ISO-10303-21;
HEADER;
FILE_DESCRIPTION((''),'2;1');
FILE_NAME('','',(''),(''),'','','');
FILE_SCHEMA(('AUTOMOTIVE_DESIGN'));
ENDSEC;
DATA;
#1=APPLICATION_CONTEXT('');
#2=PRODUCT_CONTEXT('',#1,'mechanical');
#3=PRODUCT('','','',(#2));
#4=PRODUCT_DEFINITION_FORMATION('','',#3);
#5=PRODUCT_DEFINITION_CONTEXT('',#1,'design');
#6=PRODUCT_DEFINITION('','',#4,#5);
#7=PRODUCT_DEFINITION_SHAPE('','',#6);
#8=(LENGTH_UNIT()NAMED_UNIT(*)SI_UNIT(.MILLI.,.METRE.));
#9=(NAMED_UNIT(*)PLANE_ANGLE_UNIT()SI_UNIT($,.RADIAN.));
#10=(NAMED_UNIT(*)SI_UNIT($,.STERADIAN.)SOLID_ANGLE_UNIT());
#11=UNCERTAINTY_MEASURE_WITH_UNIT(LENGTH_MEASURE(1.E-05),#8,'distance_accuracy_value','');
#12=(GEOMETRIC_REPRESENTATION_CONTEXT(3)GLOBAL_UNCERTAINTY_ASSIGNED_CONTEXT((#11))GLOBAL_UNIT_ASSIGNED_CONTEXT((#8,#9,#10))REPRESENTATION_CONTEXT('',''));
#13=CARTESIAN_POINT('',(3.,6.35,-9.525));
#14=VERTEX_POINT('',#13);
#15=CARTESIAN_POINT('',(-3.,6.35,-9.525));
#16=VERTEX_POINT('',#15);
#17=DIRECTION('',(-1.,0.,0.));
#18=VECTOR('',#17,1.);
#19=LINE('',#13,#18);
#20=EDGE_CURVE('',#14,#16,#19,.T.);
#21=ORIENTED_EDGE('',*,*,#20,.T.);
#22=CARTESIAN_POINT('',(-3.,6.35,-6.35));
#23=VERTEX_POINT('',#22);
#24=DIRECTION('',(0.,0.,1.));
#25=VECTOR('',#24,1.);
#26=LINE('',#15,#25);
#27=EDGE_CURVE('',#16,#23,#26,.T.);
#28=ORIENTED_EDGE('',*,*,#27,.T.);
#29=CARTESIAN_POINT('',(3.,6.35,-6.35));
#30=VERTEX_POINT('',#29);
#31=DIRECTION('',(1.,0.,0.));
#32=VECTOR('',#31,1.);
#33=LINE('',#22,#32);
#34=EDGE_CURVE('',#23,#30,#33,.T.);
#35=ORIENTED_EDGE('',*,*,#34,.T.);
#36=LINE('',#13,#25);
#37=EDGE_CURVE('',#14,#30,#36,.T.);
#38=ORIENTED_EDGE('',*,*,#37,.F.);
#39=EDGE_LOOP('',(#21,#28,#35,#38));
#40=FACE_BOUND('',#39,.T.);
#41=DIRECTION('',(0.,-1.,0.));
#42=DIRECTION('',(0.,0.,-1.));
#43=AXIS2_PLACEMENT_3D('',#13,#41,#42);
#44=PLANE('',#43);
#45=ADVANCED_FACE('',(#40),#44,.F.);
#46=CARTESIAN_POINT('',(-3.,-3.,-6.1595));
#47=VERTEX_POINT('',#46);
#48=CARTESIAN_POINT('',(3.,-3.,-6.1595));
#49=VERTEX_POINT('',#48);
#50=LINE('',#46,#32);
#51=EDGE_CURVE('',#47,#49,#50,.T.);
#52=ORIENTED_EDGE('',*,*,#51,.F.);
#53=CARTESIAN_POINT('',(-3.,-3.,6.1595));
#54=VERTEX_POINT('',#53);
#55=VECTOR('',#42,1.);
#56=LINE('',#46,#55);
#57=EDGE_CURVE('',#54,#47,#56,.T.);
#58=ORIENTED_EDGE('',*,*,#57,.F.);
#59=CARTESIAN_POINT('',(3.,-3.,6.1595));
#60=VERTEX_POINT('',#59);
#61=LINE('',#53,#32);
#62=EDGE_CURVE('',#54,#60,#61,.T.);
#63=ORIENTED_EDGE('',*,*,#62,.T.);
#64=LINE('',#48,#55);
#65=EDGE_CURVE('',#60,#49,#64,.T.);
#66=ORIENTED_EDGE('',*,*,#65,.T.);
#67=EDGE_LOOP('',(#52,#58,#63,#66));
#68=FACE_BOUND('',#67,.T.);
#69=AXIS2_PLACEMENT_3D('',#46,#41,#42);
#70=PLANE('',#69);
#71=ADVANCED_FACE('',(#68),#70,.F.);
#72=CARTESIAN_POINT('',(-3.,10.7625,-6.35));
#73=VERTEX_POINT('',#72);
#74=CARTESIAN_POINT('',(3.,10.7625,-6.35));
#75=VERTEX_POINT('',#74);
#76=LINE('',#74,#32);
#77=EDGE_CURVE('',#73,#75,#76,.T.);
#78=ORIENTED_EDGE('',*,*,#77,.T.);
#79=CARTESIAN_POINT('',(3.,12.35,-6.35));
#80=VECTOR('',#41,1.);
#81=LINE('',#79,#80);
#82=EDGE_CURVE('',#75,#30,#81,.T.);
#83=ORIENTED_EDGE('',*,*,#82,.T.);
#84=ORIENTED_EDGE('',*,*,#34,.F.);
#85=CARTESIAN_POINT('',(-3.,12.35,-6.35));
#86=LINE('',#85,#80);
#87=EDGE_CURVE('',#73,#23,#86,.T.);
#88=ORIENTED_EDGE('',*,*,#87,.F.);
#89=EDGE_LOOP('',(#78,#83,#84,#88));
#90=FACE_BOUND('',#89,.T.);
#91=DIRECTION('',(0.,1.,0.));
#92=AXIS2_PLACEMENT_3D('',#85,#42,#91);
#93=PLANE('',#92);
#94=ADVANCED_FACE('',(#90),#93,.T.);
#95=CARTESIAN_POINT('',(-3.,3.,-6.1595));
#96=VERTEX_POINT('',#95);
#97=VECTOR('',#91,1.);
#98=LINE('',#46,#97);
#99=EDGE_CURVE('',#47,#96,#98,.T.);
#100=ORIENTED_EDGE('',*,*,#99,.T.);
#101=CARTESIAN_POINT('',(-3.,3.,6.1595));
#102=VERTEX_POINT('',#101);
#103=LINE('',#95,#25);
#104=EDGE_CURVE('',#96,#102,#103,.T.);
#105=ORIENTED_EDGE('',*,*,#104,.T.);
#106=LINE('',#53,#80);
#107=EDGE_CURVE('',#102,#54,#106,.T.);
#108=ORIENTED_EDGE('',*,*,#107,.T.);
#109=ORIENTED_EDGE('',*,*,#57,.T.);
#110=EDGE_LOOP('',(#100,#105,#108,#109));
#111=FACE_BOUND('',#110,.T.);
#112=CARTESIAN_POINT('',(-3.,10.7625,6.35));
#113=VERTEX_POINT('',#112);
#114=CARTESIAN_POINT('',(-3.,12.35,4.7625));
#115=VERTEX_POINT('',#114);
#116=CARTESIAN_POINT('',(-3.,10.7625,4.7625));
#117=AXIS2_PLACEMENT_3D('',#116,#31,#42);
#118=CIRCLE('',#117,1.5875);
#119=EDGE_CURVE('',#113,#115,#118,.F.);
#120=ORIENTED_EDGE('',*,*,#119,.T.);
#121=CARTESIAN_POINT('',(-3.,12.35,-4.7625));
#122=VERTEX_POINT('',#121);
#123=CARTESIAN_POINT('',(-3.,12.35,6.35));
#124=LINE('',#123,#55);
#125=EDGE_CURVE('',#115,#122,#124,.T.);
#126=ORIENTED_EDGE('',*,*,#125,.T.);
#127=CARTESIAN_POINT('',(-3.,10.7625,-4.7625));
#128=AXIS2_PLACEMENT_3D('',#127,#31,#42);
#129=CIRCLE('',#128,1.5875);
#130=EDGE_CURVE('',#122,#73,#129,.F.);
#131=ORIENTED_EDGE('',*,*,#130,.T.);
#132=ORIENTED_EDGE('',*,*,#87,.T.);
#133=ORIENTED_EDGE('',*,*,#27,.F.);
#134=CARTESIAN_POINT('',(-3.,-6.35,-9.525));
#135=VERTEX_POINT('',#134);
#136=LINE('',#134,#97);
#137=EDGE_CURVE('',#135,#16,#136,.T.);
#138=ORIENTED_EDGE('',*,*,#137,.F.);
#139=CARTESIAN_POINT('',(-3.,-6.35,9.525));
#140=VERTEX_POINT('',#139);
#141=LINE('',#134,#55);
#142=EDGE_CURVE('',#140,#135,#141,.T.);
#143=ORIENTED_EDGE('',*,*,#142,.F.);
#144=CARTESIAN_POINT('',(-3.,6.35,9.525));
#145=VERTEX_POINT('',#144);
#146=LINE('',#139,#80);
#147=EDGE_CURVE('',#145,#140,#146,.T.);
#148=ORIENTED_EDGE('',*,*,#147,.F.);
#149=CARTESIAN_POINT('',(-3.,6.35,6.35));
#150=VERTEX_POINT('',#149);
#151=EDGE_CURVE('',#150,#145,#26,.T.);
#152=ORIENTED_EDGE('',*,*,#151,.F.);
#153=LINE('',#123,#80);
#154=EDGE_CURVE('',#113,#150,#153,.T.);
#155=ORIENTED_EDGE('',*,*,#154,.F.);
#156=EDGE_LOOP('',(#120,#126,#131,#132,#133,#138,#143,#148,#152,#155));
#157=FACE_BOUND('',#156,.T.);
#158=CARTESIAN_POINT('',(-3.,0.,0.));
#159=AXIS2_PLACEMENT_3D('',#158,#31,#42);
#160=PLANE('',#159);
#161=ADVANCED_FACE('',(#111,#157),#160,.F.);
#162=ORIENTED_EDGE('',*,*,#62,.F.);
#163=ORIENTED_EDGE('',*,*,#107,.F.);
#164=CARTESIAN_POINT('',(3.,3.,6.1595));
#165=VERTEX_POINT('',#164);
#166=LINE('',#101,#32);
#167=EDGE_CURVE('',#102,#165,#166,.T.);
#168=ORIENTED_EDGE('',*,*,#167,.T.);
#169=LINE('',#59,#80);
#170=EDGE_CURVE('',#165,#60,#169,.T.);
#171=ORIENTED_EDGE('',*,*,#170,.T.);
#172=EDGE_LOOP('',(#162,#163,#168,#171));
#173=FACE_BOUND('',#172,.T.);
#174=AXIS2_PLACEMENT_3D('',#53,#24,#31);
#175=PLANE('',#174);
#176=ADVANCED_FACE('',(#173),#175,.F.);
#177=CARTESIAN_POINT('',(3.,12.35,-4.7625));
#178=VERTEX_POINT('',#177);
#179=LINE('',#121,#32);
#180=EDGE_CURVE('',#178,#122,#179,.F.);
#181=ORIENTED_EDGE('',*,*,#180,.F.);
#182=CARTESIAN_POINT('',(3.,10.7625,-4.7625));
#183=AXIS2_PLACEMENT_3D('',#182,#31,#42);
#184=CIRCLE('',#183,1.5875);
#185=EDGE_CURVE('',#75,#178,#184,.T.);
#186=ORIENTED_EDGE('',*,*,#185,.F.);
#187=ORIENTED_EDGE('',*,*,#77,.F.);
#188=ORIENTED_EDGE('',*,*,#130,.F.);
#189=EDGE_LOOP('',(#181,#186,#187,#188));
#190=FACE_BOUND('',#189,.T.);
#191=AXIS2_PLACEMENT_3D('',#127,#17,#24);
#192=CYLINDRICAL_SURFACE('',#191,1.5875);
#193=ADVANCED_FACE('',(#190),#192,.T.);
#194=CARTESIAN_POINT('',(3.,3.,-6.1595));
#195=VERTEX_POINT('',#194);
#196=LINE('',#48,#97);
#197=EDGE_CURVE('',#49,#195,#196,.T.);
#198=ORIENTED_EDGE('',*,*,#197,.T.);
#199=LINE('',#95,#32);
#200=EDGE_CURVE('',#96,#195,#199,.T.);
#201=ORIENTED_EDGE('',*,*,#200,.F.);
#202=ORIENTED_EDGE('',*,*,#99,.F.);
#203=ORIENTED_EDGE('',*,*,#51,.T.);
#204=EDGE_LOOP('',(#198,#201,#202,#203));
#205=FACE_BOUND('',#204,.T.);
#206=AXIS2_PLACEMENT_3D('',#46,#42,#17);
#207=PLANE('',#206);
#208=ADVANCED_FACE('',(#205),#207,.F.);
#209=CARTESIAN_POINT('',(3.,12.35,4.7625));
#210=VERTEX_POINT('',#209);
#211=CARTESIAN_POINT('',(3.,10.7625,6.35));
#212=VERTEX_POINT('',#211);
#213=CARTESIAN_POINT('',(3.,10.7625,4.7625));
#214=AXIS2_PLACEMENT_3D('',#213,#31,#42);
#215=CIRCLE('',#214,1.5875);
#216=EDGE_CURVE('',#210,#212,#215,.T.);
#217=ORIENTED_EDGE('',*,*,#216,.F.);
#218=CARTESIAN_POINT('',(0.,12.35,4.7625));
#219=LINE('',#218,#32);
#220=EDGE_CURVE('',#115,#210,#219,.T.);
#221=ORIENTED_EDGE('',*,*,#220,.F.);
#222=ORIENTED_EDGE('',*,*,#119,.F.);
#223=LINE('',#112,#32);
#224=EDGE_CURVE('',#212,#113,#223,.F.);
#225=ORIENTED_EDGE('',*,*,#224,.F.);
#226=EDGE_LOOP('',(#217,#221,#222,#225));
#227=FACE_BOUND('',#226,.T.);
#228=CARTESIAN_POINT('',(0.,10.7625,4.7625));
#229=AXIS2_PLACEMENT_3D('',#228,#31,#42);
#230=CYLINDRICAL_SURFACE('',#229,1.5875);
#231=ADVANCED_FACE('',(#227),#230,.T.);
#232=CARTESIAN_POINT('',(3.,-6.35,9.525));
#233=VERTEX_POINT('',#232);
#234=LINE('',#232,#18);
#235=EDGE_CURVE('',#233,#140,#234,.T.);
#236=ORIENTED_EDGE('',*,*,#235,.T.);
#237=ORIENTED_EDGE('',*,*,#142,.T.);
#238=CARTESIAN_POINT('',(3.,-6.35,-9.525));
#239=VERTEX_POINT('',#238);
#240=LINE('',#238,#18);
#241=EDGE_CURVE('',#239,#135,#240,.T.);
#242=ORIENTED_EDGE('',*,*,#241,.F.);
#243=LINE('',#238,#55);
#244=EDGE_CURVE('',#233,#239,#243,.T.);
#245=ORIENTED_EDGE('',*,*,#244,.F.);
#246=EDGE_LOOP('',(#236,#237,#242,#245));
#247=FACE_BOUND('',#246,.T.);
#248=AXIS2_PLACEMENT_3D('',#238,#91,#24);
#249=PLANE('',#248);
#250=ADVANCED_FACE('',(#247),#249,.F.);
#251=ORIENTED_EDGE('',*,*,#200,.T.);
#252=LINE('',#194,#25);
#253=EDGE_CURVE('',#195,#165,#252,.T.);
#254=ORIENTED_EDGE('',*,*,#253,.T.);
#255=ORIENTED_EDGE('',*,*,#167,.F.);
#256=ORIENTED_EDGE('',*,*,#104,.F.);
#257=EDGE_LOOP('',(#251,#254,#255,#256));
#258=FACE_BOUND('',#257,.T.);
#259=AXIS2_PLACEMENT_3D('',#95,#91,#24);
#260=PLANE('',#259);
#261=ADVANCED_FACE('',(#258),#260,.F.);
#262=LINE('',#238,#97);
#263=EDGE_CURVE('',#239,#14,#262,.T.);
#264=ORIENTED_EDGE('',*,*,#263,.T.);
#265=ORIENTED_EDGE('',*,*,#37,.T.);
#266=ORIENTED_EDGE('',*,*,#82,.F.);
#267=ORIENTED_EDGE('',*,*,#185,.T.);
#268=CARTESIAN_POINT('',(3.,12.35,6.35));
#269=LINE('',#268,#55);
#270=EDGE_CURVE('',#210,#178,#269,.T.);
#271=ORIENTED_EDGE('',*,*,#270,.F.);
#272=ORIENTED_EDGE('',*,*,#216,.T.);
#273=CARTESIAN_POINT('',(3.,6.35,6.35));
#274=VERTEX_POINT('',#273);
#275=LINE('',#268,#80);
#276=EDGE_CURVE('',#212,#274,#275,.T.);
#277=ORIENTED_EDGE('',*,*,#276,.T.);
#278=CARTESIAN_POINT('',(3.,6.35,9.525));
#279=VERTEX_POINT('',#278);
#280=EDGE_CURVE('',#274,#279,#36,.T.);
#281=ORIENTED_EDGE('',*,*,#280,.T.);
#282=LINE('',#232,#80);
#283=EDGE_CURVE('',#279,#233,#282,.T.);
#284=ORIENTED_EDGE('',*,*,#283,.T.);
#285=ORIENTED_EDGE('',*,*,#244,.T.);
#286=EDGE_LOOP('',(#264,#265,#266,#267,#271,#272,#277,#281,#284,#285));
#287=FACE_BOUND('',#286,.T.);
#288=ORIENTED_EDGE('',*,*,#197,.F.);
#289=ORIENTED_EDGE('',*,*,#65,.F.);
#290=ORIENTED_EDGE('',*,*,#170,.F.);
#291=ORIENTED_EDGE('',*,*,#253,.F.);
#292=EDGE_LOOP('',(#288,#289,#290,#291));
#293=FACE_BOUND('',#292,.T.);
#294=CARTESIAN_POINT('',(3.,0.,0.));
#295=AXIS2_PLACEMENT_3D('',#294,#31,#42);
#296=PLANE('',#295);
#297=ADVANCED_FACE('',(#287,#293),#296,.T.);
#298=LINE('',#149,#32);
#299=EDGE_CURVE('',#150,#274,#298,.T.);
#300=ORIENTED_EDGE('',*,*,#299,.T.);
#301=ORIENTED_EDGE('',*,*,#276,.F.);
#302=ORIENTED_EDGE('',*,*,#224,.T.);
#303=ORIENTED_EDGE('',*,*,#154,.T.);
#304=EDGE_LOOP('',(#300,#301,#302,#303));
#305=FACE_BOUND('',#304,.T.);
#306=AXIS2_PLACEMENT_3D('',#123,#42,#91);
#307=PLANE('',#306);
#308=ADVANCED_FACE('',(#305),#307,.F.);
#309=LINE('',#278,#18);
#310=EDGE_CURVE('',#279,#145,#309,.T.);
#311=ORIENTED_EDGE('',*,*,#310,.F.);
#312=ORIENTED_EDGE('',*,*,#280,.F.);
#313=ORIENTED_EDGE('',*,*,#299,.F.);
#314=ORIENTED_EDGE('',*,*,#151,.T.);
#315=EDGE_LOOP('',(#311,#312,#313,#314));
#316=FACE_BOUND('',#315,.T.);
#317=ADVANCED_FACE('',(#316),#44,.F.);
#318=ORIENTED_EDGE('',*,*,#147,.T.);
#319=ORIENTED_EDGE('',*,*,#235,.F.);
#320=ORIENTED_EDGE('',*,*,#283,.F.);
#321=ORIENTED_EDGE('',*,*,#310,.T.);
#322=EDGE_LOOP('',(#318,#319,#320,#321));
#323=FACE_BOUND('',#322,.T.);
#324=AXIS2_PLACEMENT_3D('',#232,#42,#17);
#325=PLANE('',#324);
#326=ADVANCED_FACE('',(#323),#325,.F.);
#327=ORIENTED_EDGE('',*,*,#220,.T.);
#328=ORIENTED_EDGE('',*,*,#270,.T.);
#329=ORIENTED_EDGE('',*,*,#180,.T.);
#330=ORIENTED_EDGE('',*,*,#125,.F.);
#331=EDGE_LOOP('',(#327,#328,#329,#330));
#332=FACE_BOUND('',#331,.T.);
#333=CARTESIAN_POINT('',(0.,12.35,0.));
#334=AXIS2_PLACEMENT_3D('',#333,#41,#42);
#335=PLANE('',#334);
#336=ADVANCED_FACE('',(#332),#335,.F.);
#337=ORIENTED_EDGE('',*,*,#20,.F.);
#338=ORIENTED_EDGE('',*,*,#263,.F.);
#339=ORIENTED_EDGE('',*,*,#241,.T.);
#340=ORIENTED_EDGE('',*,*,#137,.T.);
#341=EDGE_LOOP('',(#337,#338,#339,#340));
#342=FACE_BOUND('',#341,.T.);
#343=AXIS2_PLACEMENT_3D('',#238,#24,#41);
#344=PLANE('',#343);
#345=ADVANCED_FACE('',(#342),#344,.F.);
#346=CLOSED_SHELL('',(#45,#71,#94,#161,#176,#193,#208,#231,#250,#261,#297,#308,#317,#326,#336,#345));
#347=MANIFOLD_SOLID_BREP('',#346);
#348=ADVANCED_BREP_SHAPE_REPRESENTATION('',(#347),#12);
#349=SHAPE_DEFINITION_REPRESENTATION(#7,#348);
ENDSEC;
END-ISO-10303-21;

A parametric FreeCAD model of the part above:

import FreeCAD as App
import Part
import Sketcher

V = App.Vector
Q = App.Units.Quantity


def edges_at(feature, points):
    """Names of the edges that pass closest to the given points."""
    edges = feature.Shape.Edges
    near = lambda p: min(range(len(edges)), key=lambda i: edges[i].distToShape(Part.Vertex(*p))[0])
    return sorted({f"Edge{near(p) + 1}" for p in points})

doc = App.newDocument("Part")
body = doc.addObject("PartDesign::Body", "Body")

# Sketch on YZ plane
sketch1 = body.newObject("Sketcher::SketchObject", "Sketch")
sketch1.AttachmentSupport = (doc.getObject("YZ_Plane"), [""])
sketch1.MapMode = "FlatFace"
sketch1.addGeometry(Part.LineSegment(V(6, 10, 0), V(-6, 10, 0)), False)
sketch1.addGeometry(Part.LineSegment(V(-6, 10, 0), V(-6, -10, 0)), False)
sketch1.addGeometry(Part.LineSegment(V(-6, -10, 0), V(6, -10, 0)), False)
sketch1.addGeometry(Part.LineSegment(V(6, -10, 0), V(6, 10, 0)), False)
sketch1.addConstraint(Sketcher.Constraint("Coincident", 0, 2, 1, 1))
sketch1.addConstraint(Sketcher.Constraint("Coincident", 1, 2, 2, 1))
sketch1.addConstraint(Sketcher.Constraint("Coincident", 2, 2, 3, 1))
sketch1.addConstraint(Sketcher.Constraint("Coincident", 3, 2, 0, 1))
sketch1.addConstraint(Sketcher.Constraint("Horizontal", 0))
sketch1.addConstraint(Sketcher.Constraint("Vertical", 1))
sketch1.addConstraint(Sketcher.Constraint("Horizontal", 2))
sketch1.addConstraint(Sketcher.Constraint("Vertical", 3))
sketch1.addConstraint(Sketcher.Constraint("Symmetric", 0, 2, 2, 2, -1, 1))
sketch1.addConstraint(Sketcher.Constraint("DistanceX", 0, 2, 0, 1, Q("0.5 in")))
sketch1.addConstraint(Sketcher.Constraint("DistanceY", 1, 2, 1, 1, Q("0.75 in")))
pad1 = body.newObject("PartDesign::Pad", "Pad")
pad1.Profile = sketch1
pad1.Length = 6
pad1.Midplane = True

# Sketch on XZ plane
sketch2 = body.newObject("Sketcher::SketchObject", "Sketch001")
sketch2.AttachmentSupport = (doc.getObject("XZ_Plane"), [""])
sketch2.MapMode = "FlatFace"
sketch2.AttachmentOffset = App.Placement(V(0, 0, -0.25 * 25.4), App.Rotation())
sketch2.addGeometry(Part.LineSegment(V(-3, -6, 0), V(-3, 6, 0)), False)
sketch2.addGeometry(Part.LineSegment(V(-3, 6, 0), V(3, 6, 0)), False)
sketch2.addGeometry(Part.LineSegment(V(3, 6, 0), V(3, -6, 0)), False)
sketch2.addGeometry(Part.LineSegment(V(3, -6, 0), V(-3, -6, 0)), False)
sketch2.addConstraint(Sketcher.Constraint("Coincident", 0, 2, 1, 1))
sketch2.addConstraint(Sketcher.Constraint("Coincident", 1, 2, 2, 1))
sketch2.addConstraint(Sketcher.Constraint("Coincident", 2, 2, 3, 1))
sketch2.addConstraint(Sketcher.Constraint("Coincident", 3, 2, 0, 1))
sketch2.addConstraint(Sketcher.Constraint("Vertical", 0))
sketch2.addConstraint(Sketcher.Constraint("Horizontal", 1))
sketch2.addConstraint(Sketcher.Constraint("Vertical", 2))
sketch2.addConstraint(Sketcher.Constraint("Horizontal", 3))
sketch2.addConstraint(Sketcher.Constraint("Symmetric", 0, 2, 2, 2, -1, 1))
sketch2.addConstraint(Sketcher.Constraint("DistanceY", 0, 1, 0, 2, Q("0.5 in")))
sketch2.addConstraint(Sketcher.Constraint("DistanceX", 1, 1, 1, 2, Q("6 mm")))
pad2 = body.newObject("PartDesign::Pad", "Pad001")
pad2.Profile = sketch2
pad2.Length = 6
pad2.Reversed = True

# Sketch on YZ plane
sketch3 = body.newObject("Sketcher::SketchObject", "Sketch002")
sketch3.AttachmentSupport = (doc.getObject("YZ_Plane"), [""])
sketch3.MapMode = "FlatFace"
sketch3.AttachmentOffset = App.Placement(V(0, 0, 3), App.Rotation())
sketch3.addGeometry(Part.LineSegment(V(3, 6, 0), V(-3, 6, 0)), False)
sketch3.addGeometry(Part.LineSegment(V(-3, 6, 0), V(-3, -6, 0)), False)
sketch3.addGeometry(Part.LineSegment(V(-3, -6, 0), V(3, -6, 0)), False)
sketch3.addGeometry(Part.LineSegment(V(3, -6, 0), V(3, 6, 0)), False)
sketch3.addConstraint(Sketcher.Constraint("Coincident", 0, 2, 1, 1))
sketch3.addConstraint(Sketcher.Constraint("Coincident", 1, 2, 2, 1))
sketch3.addConstraint(Sketcher.Constraint("Coincident", 2, 2, 3, 1))
sketch3.addConstraint(Sketcher.Constraint("Coincident", 3, 2, 0, 1))
sketch3.addConstraint(Sketcher.Constraint("Horizontal", 0))
sketch3.addConstraint(Sketcher.Constraint("Vertical", 1))
sketch3.addConstraint(Sketcher.Constraint("Horizontal", 2))
sketch3.addConstraint(Sketcher.Constraint("Vertical", 3))
sketch3.addConstraint(Sketcher.Constraint("Symmetric", 0, 2, 2, 2, -1, 1))
sketch3.addConstraint(Sketcher.Constraint("DistanceY", 1, 2, 1, 1, Q("0.485 in")))
sketch3.addConstraint(Sketcher.Constraint("DistanceX", 0, 2, 0, 1, Q("6 mm")))
pocket1 = body.newObject("PartDesign::Pocket", "Pocket")
pocket1.Profile = sketch3
pocket1.Type = "ThroughAll"
doc.recompute()

fillet = body.newObject("PartDesign::Fillet", "Fillet")
fillet.Base = (pocket1, edges_at(pocket1, [(0, 12.35, -6.35), (0, 12.35, 6.35)]))
fillet.Radius = Q("0.0625 in")

doc.recompute()
